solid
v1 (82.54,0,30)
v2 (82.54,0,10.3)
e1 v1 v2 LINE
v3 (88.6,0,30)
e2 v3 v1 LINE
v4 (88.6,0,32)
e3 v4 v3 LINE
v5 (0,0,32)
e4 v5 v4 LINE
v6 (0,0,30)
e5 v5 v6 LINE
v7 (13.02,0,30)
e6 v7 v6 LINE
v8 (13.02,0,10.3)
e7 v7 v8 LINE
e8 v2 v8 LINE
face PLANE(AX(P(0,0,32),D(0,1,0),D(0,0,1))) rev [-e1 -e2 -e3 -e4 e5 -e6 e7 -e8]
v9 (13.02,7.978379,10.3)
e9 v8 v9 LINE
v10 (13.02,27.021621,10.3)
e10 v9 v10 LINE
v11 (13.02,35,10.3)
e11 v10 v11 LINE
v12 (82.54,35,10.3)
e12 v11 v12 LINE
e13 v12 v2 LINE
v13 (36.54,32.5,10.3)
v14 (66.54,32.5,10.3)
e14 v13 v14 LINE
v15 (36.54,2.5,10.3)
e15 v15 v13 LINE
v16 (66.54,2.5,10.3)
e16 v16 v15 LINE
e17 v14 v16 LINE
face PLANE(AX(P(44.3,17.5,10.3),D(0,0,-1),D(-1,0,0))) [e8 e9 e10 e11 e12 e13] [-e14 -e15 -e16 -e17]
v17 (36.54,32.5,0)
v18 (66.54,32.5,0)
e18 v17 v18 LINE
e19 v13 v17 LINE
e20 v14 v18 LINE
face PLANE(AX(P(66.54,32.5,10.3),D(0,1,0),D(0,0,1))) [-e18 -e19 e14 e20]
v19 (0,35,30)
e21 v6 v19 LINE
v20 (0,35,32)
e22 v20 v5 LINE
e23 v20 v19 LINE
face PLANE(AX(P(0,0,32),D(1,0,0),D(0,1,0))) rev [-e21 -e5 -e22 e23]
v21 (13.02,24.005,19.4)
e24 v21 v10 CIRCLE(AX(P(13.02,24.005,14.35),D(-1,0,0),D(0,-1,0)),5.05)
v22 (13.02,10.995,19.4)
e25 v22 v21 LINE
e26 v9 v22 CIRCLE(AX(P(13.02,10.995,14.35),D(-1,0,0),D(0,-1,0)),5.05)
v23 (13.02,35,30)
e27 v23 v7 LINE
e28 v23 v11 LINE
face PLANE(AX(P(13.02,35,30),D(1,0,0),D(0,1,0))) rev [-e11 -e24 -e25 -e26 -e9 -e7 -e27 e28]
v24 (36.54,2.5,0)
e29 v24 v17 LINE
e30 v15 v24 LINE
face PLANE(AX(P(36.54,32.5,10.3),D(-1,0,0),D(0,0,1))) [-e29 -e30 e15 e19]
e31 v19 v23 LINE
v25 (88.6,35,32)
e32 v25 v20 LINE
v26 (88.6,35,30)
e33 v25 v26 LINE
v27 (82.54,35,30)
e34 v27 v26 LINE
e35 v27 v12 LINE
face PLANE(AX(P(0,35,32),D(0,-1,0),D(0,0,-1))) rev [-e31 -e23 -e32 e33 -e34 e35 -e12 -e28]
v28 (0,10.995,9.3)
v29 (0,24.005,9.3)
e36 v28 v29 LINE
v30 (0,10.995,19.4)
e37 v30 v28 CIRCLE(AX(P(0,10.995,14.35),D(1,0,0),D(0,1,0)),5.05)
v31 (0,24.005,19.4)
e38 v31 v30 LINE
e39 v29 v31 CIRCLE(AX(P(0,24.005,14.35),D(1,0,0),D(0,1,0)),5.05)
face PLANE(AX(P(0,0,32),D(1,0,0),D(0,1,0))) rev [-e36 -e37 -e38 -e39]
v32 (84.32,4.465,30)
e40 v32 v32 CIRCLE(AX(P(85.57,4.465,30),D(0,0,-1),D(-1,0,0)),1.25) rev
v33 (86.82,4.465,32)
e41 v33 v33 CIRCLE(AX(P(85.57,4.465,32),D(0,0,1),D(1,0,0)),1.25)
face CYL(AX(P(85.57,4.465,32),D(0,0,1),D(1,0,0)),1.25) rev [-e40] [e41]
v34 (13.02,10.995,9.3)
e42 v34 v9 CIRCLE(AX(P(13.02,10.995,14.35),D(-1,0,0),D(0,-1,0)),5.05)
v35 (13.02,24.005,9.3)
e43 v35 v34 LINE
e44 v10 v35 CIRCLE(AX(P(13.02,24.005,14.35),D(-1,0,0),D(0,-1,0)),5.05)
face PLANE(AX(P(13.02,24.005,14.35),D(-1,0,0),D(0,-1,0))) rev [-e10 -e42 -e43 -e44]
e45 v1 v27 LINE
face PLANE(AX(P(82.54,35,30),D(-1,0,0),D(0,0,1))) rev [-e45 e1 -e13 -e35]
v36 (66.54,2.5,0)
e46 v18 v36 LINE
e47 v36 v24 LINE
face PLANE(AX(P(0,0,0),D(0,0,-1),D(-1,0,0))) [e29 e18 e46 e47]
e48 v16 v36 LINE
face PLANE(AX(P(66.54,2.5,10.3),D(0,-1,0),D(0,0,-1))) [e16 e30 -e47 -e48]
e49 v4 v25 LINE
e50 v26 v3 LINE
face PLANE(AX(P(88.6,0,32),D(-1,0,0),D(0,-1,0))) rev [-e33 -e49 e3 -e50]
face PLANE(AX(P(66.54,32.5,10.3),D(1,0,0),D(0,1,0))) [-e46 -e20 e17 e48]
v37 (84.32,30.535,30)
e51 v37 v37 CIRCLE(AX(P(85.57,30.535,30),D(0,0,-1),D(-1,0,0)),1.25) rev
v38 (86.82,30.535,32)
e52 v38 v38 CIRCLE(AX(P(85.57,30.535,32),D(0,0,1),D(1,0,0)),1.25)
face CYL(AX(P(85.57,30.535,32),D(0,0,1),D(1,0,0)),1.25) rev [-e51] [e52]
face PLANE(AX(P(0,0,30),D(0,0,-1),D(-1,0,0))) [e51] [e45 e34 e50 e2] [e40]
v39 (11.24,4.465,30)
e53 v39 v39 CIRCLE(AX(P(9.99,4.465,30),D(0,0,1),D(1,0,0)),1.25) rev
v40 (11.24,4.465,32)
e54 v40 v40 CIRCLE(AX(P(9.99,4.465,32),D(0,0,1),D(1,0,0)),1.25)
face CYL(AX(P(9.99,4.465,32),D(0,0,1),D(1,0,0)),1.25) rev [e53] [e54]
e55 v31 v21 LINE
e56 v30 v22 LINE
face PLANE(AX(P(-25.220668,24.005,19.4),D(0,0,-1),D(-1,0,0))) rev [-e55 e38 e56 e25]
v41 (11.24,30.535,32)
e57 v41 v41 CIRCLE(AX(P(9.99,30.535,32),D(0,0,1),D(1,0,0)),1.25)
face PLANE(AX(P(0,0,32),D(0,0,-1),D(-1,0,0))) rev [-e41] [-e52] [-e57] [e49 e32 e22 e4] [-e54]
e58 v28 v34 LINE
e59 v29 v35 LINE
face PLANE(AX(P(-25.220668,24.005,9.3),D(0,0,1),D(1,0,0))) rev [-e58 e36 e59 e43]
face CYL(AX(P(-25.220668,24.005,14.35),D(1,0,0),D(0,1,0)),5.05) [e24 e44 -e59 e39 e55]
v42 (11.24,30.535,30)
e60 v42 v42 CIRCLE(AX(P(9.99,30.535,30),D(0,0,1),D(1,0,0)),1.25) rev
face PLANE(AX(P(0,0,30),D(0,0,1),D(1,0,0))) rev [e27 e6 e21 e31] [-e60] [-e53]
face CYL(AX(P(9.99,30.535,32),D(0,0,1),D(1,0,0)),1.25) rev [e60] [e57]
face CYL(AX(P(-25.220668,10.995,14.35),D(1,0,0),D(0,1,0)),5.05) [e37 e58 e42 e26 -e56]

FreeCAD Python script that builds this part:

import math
import FreeCAD as App
import Part
import Sketcher
from FreeCAD import Vector


def add_polygon(sketch, points):
    """Adds a closed chain of lines whose ends are joined by coincident constraints."""
    first, n = sketch.GeometryCount, len(points)
    for a, b in zip(points, points[1:] + points[:1]):
        sketch.addGeometry(Part.LineSegment(App.Vector(*a, 0), App.Vector(*b, 0)), False)
    for i in range(n):
        sketch.addConstraint(Sketcher.Constraint("Coincident", first + i, 2, first + (i + 1) % n, 1))

doc = App.newDocument("Part")
body = doc.addObject("PartDesign::Body", "Body")

# Sketch on XY plane
sketch1 = body.newObject("Sketcher::SketchObject", "Sketch")
sketch1.AttachmentSupport = (doc.getObject("XY_Plane"), [""])
sketch1.MapMode = "FlatFace"
add_polygon(sketch1, [(0, 35), (0, 0), (89, 0), (89, 35)])  # lines 0-3
sketch1.addConstraint(Sketcher.Constraint("Vertical", 0))
sketch1.addConstraint(Sketcher.Constraint("Horizontal", 1))
sketch1.addConstraint(Sketcher.Constraint("Vertical", 2))
sketch1.addConstraint(Sketcher.Constraint("Horizontal", 3))
sketch1.addConstraint(Sketcher.Constraint("Coincident", 0, 2, -1, 1))
sketch1.addConstraint(Sketcher.Constraint("DistanceY", 0, 2, 0, 1, 35.0))
sketch1.addConstraint(Sketcher.Constraint("DistanceX", 1, 1, 1, 2, 88.6))
pad1 = body.newObject("PartDesign::Pad", "Pad")
pad1.Profile = sketch1
pad1.Length = 32

# Sketch on XY plane
sketch2 = body.newObject("Sketcher::SketchObject", "Sketch001")
sketch2.AttachmentSupport = (doc.getObject("XY_Plane"), [""])
sketch2.MapMode = "FlatFace"
sketch2.AttachmentOffset = App.Placement(Vector(0, 0, 32), App.Rotation())
sketch2.addGeometry(Part.Circle(Vector(10, 30.5, 0), Vector(0, 0, 1), 1.2), False)
sketch2.addGeometry(Part.Circle(Vector(10, 4.5, 0), Vector(0, 0, 1), 1.2), False)
sketch2.addGeometry(Part.Circle(Vector(85.6, 4.5, 0), Vector(0, 0, 1), 1.2), False)
sketch2.addGeometry(Part.Circle(Vector(85.6, 30.5, 0), Vector(0, 0, 1), 1.2), False)
sketch2.addConstraint(Sketcher.Constraint("Equal", 0, 1))
sketch2.addConstraint(Sketcher.Constraint("Equal", 1, 2))
sketch2.addConstraint(Sketcher.Constraint("Equal", 2, 3))
sketch2.addConstraint(Sketcher.Constraint("Horizontal", 1, 3, 2, 3))
sketch2.addConstraint(Sketcher.Constraint("Horizontal", 0, 3, 3, 3))
sketch2.addConstraint(Sketcher.Constraint("Vertical", 0, 3, 1, 3))
sketch2.addConstraint(Sketcher.Constraint("Vertical", 2, 3, 3, 3))
sketch2.addConstraint(Sketcher.Constraint("Diameter", 0, 2.5))
sketch2.addConstraint(Sketcher.Constraint("DistanceX", -1, 1, 0, 3, 9.99))
sketch2.addConstraint(Sketcher.Constraint("DistanceX", -1, 1, 2, 3, 85.57))
sketch2.addConstraint(Sketcher.Constraint("DistanceY", 1, 3, 0, 3, 26.07))
sketch2.addConstraint(Sketcher.Constraint("DistanceY", -1, 1, 0, 3, 30.535))
doc.recompute()
hole = body.newObject("PartDesign::Hole", "Hole")
hole.Profile = sketch2
hole.ThreadType = "None"
hole.Diameter = 2.5
hole.DepthType = "ThroughAll"

# Sketch on XY plane
sketch3 = body.newObject("Sketcher::SketchObject", "Sketch002")
sketch3.AttachmentSupport = (doc.getObject("XY_Plane"), [""])
sketch3.MapMode = "FlatFace"
add_polygon(sketch3, [(89, 35), (89, 0), (83, 0), (83, 35)])  # lines 0-3
add_polygon(sketch3, [(13, 35), (13, 0), (0, 0), (0, 35)])  # lines 4-7
sketch3.addConstraint(Sketcher.Constraint("Vertical", 0))
sketch3.addConstraint(Sketcher.Constraint("Horizontal", 1))
sketch3.addConstraint(Sketcher.Constraint("Vertical", 2))
sketch3.addConstraint(Sketcher.Constraint("Horizontal", 3))
sketch3.addConstraint(Sketcher.Constraint("Vertical", 4))
sketch3.addConstraint(Sketcher.Constraint("Horizontal", 5))
sketch3.addConstraint(Sketcher.Constraint("Vertical", 6))
sketch3.addConstraint(Sketcher.Constraint("Horizontal", 7))
sketch3.addConstraint(Sketcher.Constraint("Coincident", 5, 2, -1, 1))
sketch3.addConstraint(Sketcher.Constraint("PointOnObject", 0, 2, -1))
sketch3.addConstraint(Sketcher.Constraint("Horizontal", 3, 2, 6, 2))
sketch3.addConstraint(Sketcher.Constraint("DistanceY", 0, 2, 0, 1, 35.0))
sketch3.addConstraint(Sketcher.Constraint("DistanceX", 1, 2, 1, 1, 6.06))
sketch3.addConstraint(Sketcher.Constraint("DistanceX", 5, 2, 5, 1, 13.02))
sketch3.addConstraint(Sketcher.Constraint("DistanceX", -1, 1, 0, 2, 88.6))
pocket1 = body.newObject("PartDesign::Pocket", "Pocket")
pocket1.Profile = sketch3
pocket1.Length = 30
pocket1.Reversed = True

# Sketch on XY plane
sketch4 = body.newObject("Sketcher::SketchObject", "Sketch003")
sketch4.AttachmentSupport = (doc.getObject("XY_Plane"), [""])
sketch4.MapMode = "FlatFace"
add_polygon(sketch4, [(100, 46), (100, -11), (-11, -11), (-11, 46)])  # lines 0-3
add_polygon(sketch4, [(37, 2), (67, 2), (67, 32), (37, 32)])  # lines 4-7
sketch4.addConstraint(Sketcher.Constraint("Vertical", 0))
sketch4.addConstraint(Sketcher.Constraint("Horizontal", 1))
sketch4.addConstraint(Sketcher.Constraint("Vertical", 2))
sketch4.addConstraint(Sketcher.Constraint("Horizontal", 3))
sketch4.addConstraint(Sketcher.Constraint("Horizontal", 4))
sketch4.addConstraint(Sketcher.Constraint("Vertical", 5))
sketch4.addConstraint(Sketcher.Constraint("Horizontal", 6))
sketch4.addConstraint(Sketcher.Constraint("Vertical", 7))
sketch4.addConstraint(Sketcher.Constraint("Equal", 6, 5))
sketch4.addConstraint(Sketcher.Constraint("DistanceX", 4, 1, 4, 2, 30.0))
sketch4.addConstraint(Sketcher.Constraint("DistanceY", -1, 1, 4, 2, 2.5))
sketch4.addConstraint(Sketcher.Constraint("DistanceX", 1, 2, 1, 1, 110.698))
sketch4.addConstraint(Sketcher.Constraint("DistanceY", 0, 2, 0, 1, 57.098))
sketch4.addConstraint(Sketcher.Constraint("DistanceX", -1, 1, 4, 2, 66.54))
sketch4.addConstraint(Sketcher.Constraint("DistanceX", -1, 1, 0, 2, 99.649))
sketch4.addConstraint(Sketcher.Constraint("DistanceY", 0, 2, -1, 1, 11.049))
pocket2 = body.newObject("PartDesign::Pocket", "Pocket001")
pocket2.Profile = sketch4
pocket2.Length = 10.3
pocket2.Reversed = True

# Sketch on YZ plane
sketch5 = body.newObject("Sketcher::SketchObject", "Sketch004")
sketch5.AttachmentSupport = (doc.getObject("YZ_Plane"), [""])
sketch5.MapMode = "FlatFace"
sketch5.AttachmentOffset = App.Placement(Vector(0, 0, 13.02), App.Rotation())
sketch5.addGeometry(Part.LineSegment(Vector(11, 19, 0), Vector(24, 19, 0)), False)
sketch5.addGeometry(Part.ArcOfCircle(Part.Circle(Vector(24, 14, 0), Vector(0, 0, 1), 5), math.radians(-90), math.radians(90)), False)
sketch5.addGeometry(Part.LineSegment(Vector(24, 9, 0), Vector(11, 9, 0)), False)
sketch5.addGeometry(Part.ArcOfCircle(Part.Circle(Vector(11, 14, 0), Vector(0, 0, 1), 5), math.radians(90), math.radians(270)), False)
sketch5.addConstraint(Sketcher.Constraint("Tangent", 0, 2, 1, 2))
sketch5.addConstraint(Sketcher.Constraint("Tangent", 1, 1, 2, 1))
sketch5.addConstraint(Sketcher.Constraint("Tangent", 2, 2, 3, 2))
sketch5.addConstraint(Sketcher.Constraint("Tangent", 3, 1, 0, 1))
sketch5.addConstraint(Sketcher.Constraint("Horizontal", 0))
sketch5.addConstraint(Sketcher.Constraint("Horizontal", 2))
sketch5.addConstraint(Sketcher.Constraint("Radius", 1, 5.05))
sketch5.addConstraint(Sketcher.Constraint("DistanceX", 0, 1, 0, 2, 13.01))
sketch5.addConstraint(Sketcher.Constraint("DistanceY", -1, 1, 0, 2, 19.4))
sketch5.addConstraint(Sketcher.Constraint("DistanceX", -1, 1, 1, 3, 24.005))
pad2 = body.newObject("PartDesign::Pad", "Pad001")
pad2.Profile = sketch5
pad2.Length = 13.02
pad2.Reversed = True

doc.recompute()
